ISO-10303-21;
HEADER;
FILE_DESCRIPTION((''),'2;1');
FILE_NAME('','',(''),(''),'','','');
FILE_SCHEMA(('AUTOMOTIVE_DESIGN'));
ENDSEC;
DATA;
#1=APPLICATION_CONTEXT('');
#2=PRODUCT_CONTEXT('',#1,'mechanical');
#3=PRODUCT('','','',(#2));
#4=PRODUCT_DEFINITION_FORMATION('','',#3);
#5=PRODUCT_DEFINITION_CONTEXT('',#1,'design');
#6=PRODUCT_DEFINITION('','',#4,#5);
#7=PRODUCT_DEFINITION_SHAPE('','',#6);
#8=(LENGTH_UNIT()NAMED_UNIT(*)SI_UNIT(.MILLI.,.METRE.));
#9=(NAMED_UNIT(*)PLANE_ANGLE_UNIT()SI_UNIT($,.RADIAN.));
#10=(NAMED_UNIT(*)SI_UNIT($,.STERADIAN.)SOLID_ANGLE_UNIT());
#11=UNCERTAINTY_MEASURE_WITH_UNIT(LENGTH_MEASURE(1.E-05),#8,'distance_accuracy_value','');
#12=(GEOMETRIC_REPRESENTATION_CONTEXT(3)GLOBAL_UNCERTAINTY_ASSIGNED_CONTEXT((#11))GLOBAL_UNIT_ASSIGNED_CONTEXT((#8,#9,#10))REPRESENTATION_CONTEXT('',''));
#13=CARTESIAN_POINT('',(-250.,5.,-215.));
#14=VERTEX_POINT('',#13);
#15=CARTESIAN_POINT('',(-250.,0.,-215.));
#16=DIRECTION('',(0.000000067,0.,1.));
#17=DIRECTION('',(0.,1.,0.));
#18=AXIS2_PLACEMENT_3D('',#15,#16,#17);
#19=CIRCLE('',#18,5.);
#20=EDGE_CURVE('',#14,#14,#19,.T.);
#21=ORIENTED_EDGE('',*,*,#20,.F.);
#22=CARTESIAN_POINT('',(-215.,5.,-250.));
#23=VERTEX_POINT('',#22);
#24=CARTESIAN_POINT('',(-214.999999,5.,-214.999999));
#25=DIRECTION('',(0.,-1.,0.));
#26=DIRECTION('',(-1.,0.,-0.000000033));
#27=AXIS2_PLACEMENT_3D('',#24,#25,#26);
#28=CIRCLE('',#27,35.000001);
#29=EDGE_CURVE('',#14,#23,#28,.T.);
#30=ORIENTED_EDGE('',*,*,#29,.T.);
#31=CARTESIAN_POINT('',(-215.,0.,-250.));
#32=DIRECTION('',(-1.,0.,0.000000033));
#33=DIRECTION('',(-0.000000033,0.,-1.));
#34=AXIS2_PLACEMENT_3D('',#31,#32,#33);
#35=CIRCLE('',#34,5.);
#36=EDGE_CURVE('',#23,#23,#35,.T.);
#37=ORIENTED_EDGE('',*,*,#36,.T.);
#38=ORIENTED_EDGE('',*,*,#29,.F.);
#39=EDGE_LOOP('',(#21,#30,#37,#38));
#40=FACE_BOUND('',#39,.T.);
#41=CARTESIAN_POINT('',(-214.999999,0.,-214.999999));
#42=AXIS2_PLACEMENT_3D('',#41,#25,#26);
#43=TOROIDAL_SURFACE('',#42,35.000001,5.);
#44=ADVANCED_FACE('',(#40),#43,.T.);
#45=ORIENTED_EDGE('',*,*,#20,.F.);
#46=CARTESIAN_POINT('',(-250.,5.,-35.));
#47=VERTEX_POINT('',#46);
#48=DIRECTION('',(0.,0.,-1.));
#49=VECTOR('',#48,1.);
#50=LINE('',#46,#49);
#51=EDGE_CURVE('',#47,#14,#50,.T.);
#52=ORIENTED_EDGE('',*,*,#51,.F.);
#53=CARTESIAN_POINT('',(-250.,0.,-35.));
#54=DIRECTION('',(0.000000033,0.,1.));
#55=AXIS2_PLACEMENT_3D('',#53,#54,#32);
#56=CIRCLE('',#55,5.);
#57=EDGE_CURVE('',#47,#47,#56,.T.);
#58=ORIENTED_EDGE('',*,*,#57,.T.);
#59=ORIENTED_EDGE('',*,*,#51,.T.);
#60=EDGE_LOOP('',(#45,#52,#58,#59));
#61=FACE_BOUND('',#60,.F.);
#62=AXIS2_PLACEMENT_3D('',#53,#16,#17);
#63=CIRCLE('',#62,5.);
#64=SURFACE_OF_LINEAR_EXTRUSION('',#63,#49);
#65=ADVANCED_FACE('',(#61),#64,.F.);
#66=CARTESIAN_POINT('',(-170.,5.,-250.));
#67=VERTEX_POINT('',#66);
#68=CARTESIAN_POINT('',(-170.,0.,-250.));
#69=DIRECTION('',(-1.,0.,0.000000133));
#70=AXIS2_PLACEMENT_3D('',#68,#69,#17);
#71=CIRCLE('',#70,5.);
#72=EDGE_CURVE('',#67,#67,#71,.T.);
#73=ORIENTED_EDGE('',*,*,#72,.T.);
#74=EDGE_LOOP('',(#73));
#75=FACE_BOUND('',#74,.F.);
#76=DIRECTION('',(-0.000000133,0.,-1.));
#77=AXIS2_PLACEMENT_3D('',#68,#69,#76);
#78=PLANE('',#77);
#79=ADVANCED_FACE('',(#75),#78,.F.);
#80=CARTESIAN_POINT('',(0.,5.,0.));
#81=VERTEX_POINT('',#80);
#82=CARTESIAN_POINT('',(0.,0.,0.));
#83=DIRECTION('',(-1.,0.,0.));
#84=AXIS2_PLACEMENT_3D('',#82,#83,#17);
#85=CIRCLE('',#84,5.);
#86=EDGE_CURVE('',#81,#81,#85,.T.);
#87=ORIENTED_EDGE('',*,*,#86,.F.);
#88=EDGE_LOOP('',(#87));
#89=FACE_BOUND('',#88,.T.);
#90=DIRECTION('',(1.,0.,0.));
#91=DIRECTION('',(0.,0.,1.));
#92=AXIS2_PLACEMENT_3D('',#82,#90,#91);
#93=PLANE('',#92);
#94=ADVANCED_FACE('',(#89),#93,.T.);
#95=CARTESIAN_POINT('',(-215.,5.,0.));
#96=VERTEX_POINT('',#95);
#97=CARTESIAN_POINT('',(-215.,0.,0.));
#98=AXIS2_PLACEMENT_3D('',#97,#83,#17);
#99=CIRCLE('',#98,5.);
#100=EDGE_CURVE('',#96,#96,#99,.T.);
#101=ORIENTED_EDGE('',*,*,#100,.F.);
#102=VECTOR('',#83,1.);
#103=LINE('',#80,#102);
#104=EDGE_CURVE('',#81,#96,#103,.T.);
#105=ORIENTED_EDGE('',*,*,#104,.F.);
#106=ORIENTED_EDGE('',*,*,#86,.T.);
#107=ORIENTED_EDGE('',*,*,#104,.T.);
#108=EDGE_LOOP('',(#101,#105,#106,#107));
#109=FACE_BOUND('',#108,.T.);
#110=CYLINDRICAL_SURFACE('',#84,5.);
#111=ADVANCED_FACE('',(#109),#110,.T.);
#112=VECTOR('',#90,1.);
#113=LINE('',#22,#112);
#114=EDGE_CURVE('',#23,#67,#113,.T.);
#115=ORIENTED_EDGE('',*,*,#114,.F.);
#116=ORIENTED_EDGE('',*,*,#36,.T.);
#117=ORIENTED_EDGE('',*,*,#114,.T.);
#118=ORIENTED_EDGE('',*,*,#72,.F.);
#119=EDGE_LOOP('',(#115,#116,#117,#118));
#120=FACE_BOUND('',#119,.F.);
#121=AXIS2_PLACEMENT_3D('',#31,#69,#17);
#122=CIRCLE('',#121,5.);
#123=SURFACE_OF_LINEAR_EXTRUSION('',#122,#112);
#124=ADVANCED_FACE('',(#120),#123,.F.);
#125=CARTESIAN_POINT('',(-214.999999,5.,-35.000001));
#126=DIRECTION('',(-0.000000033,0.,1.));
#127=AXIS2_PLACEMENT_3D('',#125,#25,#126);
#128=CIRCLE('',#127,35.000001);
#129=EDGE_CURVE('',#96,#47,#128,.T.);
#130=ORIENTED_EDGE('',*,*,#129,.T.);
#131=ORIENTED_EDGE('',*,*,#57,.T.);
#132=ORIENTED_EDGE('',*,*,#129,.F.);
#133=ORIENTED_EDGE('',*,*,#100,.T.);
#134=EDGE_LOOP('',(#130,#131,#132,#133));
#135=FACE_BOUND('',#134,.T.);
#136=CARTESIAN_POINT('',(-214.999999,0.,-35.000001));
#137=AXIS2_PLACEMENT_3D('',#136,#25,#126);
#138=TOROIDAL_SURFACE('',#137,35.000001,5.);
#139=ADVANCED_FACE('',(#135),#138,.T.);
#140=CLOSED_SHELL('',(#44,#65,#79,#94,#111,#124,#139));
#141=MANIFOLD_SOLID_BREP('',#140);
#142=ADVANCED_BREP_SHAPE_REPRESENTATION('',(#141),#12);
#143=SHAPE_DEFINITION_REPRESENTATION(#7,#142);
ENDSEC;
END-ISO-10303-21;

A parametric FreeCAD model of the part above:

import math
import FreeCAD as App
import Part
import Sketcher

V = App.Vector
Q = App.Units.Quantity

doc = App.newDocument("Part")
body = doc.addObject("PartDesign::Body", "Body")

# Sketch on YZ plane
sketch1 = body.newObject("Sketcher::SketchObject", "Sketch")
sketch1.AttachmentSupport = (doc.getObject("YZ_Plane"), [""])
sketch1.MapMode = "FlatFace"
sketch1.addGeometry(Part.Circle(V(0, 0, 0), V(0, 0, 1), 5), False)
sketch1.addConstraint([
    Sketcher.Constraint("Coincident", 0, 3, -1, 1),
    Sketcher.Constraint("Diameter", 0, Q("10 mm")),
])

# Sketch on XZ plane
sketch2 = body.newObject("Sketcher::SketchObject", "Sketch001")
sketch2.AttachmentSupport = (doc.getObject("XZ_Plane"), [""])
sketch2.MapMode = "FlatFace"
sketch2.addGeometry([
    Part.LineSegment(V(0, 0, 0), V(-215, 0, 0)),  # 0
    Part.ArcOfCircle(Part.Circle(V(-215, -35, 0), V(0, 0, 1), 35), math.radians(90), math.radians(180)),  # 1
    Part.LineSegment(V(-250, -35, 0), V(-250, -215, 0)),  # 2
    Part.ArcOfCircle(Part.Circle(V(-215, -215, 0), V(0, 0, 1), 35), math.radians(-180), math.radians(-90)),  # 3
    Part.LineSegment(V(-215, -250, 0), V(-170, -250, 0)),  # 4
], False)
sketch2.addConstraint([
    Sketcher.Constraint("Tangent", 0, 2, 1, 1),
    Sketcher.Constraint("Tangent", 1, 2, 2, 1),
    Sketcher.Constraint("Tangent", 2, 2, 3, 1),
    Sketcher.Constraint("Tangent", 3, 2, 4, 1),
    Sketcher.Constraint("Horizontal", 0),
    Sketcher.Constraint("Vertical", 2),
    Sketcher.Constraint("Horizontal", 4),
    Sketcher.Constraint("Coincident", 0, 1, -1, 1),
    Sketcher.Constraint("Equal", 1, 3),
    Sketcher.Constraint("Radius", 1, Q("35.000001 mm")),
    Sketcher.Constraint("DistanceX", 0, 2, 0, 1, Q("215 mm")),
    Sketcher.Constraint("DistanceX", 4, 1, 4, 2, Q("45 mm")),
    Sketcher.Constraint("DistanceY", 2, 2, 2, 1, Q("180 mm")),
])
doc.recompute()

additivepipe = body.newObject("PartDesign::AdditivePipe", "AdditivePipe")
additivepipe.Profile = sketch1
additivepipe.Spine = (sketch2, ["Edge1", "Edge2", "Edge3", "Edge4", "Edge5"])

doc.recompute()
